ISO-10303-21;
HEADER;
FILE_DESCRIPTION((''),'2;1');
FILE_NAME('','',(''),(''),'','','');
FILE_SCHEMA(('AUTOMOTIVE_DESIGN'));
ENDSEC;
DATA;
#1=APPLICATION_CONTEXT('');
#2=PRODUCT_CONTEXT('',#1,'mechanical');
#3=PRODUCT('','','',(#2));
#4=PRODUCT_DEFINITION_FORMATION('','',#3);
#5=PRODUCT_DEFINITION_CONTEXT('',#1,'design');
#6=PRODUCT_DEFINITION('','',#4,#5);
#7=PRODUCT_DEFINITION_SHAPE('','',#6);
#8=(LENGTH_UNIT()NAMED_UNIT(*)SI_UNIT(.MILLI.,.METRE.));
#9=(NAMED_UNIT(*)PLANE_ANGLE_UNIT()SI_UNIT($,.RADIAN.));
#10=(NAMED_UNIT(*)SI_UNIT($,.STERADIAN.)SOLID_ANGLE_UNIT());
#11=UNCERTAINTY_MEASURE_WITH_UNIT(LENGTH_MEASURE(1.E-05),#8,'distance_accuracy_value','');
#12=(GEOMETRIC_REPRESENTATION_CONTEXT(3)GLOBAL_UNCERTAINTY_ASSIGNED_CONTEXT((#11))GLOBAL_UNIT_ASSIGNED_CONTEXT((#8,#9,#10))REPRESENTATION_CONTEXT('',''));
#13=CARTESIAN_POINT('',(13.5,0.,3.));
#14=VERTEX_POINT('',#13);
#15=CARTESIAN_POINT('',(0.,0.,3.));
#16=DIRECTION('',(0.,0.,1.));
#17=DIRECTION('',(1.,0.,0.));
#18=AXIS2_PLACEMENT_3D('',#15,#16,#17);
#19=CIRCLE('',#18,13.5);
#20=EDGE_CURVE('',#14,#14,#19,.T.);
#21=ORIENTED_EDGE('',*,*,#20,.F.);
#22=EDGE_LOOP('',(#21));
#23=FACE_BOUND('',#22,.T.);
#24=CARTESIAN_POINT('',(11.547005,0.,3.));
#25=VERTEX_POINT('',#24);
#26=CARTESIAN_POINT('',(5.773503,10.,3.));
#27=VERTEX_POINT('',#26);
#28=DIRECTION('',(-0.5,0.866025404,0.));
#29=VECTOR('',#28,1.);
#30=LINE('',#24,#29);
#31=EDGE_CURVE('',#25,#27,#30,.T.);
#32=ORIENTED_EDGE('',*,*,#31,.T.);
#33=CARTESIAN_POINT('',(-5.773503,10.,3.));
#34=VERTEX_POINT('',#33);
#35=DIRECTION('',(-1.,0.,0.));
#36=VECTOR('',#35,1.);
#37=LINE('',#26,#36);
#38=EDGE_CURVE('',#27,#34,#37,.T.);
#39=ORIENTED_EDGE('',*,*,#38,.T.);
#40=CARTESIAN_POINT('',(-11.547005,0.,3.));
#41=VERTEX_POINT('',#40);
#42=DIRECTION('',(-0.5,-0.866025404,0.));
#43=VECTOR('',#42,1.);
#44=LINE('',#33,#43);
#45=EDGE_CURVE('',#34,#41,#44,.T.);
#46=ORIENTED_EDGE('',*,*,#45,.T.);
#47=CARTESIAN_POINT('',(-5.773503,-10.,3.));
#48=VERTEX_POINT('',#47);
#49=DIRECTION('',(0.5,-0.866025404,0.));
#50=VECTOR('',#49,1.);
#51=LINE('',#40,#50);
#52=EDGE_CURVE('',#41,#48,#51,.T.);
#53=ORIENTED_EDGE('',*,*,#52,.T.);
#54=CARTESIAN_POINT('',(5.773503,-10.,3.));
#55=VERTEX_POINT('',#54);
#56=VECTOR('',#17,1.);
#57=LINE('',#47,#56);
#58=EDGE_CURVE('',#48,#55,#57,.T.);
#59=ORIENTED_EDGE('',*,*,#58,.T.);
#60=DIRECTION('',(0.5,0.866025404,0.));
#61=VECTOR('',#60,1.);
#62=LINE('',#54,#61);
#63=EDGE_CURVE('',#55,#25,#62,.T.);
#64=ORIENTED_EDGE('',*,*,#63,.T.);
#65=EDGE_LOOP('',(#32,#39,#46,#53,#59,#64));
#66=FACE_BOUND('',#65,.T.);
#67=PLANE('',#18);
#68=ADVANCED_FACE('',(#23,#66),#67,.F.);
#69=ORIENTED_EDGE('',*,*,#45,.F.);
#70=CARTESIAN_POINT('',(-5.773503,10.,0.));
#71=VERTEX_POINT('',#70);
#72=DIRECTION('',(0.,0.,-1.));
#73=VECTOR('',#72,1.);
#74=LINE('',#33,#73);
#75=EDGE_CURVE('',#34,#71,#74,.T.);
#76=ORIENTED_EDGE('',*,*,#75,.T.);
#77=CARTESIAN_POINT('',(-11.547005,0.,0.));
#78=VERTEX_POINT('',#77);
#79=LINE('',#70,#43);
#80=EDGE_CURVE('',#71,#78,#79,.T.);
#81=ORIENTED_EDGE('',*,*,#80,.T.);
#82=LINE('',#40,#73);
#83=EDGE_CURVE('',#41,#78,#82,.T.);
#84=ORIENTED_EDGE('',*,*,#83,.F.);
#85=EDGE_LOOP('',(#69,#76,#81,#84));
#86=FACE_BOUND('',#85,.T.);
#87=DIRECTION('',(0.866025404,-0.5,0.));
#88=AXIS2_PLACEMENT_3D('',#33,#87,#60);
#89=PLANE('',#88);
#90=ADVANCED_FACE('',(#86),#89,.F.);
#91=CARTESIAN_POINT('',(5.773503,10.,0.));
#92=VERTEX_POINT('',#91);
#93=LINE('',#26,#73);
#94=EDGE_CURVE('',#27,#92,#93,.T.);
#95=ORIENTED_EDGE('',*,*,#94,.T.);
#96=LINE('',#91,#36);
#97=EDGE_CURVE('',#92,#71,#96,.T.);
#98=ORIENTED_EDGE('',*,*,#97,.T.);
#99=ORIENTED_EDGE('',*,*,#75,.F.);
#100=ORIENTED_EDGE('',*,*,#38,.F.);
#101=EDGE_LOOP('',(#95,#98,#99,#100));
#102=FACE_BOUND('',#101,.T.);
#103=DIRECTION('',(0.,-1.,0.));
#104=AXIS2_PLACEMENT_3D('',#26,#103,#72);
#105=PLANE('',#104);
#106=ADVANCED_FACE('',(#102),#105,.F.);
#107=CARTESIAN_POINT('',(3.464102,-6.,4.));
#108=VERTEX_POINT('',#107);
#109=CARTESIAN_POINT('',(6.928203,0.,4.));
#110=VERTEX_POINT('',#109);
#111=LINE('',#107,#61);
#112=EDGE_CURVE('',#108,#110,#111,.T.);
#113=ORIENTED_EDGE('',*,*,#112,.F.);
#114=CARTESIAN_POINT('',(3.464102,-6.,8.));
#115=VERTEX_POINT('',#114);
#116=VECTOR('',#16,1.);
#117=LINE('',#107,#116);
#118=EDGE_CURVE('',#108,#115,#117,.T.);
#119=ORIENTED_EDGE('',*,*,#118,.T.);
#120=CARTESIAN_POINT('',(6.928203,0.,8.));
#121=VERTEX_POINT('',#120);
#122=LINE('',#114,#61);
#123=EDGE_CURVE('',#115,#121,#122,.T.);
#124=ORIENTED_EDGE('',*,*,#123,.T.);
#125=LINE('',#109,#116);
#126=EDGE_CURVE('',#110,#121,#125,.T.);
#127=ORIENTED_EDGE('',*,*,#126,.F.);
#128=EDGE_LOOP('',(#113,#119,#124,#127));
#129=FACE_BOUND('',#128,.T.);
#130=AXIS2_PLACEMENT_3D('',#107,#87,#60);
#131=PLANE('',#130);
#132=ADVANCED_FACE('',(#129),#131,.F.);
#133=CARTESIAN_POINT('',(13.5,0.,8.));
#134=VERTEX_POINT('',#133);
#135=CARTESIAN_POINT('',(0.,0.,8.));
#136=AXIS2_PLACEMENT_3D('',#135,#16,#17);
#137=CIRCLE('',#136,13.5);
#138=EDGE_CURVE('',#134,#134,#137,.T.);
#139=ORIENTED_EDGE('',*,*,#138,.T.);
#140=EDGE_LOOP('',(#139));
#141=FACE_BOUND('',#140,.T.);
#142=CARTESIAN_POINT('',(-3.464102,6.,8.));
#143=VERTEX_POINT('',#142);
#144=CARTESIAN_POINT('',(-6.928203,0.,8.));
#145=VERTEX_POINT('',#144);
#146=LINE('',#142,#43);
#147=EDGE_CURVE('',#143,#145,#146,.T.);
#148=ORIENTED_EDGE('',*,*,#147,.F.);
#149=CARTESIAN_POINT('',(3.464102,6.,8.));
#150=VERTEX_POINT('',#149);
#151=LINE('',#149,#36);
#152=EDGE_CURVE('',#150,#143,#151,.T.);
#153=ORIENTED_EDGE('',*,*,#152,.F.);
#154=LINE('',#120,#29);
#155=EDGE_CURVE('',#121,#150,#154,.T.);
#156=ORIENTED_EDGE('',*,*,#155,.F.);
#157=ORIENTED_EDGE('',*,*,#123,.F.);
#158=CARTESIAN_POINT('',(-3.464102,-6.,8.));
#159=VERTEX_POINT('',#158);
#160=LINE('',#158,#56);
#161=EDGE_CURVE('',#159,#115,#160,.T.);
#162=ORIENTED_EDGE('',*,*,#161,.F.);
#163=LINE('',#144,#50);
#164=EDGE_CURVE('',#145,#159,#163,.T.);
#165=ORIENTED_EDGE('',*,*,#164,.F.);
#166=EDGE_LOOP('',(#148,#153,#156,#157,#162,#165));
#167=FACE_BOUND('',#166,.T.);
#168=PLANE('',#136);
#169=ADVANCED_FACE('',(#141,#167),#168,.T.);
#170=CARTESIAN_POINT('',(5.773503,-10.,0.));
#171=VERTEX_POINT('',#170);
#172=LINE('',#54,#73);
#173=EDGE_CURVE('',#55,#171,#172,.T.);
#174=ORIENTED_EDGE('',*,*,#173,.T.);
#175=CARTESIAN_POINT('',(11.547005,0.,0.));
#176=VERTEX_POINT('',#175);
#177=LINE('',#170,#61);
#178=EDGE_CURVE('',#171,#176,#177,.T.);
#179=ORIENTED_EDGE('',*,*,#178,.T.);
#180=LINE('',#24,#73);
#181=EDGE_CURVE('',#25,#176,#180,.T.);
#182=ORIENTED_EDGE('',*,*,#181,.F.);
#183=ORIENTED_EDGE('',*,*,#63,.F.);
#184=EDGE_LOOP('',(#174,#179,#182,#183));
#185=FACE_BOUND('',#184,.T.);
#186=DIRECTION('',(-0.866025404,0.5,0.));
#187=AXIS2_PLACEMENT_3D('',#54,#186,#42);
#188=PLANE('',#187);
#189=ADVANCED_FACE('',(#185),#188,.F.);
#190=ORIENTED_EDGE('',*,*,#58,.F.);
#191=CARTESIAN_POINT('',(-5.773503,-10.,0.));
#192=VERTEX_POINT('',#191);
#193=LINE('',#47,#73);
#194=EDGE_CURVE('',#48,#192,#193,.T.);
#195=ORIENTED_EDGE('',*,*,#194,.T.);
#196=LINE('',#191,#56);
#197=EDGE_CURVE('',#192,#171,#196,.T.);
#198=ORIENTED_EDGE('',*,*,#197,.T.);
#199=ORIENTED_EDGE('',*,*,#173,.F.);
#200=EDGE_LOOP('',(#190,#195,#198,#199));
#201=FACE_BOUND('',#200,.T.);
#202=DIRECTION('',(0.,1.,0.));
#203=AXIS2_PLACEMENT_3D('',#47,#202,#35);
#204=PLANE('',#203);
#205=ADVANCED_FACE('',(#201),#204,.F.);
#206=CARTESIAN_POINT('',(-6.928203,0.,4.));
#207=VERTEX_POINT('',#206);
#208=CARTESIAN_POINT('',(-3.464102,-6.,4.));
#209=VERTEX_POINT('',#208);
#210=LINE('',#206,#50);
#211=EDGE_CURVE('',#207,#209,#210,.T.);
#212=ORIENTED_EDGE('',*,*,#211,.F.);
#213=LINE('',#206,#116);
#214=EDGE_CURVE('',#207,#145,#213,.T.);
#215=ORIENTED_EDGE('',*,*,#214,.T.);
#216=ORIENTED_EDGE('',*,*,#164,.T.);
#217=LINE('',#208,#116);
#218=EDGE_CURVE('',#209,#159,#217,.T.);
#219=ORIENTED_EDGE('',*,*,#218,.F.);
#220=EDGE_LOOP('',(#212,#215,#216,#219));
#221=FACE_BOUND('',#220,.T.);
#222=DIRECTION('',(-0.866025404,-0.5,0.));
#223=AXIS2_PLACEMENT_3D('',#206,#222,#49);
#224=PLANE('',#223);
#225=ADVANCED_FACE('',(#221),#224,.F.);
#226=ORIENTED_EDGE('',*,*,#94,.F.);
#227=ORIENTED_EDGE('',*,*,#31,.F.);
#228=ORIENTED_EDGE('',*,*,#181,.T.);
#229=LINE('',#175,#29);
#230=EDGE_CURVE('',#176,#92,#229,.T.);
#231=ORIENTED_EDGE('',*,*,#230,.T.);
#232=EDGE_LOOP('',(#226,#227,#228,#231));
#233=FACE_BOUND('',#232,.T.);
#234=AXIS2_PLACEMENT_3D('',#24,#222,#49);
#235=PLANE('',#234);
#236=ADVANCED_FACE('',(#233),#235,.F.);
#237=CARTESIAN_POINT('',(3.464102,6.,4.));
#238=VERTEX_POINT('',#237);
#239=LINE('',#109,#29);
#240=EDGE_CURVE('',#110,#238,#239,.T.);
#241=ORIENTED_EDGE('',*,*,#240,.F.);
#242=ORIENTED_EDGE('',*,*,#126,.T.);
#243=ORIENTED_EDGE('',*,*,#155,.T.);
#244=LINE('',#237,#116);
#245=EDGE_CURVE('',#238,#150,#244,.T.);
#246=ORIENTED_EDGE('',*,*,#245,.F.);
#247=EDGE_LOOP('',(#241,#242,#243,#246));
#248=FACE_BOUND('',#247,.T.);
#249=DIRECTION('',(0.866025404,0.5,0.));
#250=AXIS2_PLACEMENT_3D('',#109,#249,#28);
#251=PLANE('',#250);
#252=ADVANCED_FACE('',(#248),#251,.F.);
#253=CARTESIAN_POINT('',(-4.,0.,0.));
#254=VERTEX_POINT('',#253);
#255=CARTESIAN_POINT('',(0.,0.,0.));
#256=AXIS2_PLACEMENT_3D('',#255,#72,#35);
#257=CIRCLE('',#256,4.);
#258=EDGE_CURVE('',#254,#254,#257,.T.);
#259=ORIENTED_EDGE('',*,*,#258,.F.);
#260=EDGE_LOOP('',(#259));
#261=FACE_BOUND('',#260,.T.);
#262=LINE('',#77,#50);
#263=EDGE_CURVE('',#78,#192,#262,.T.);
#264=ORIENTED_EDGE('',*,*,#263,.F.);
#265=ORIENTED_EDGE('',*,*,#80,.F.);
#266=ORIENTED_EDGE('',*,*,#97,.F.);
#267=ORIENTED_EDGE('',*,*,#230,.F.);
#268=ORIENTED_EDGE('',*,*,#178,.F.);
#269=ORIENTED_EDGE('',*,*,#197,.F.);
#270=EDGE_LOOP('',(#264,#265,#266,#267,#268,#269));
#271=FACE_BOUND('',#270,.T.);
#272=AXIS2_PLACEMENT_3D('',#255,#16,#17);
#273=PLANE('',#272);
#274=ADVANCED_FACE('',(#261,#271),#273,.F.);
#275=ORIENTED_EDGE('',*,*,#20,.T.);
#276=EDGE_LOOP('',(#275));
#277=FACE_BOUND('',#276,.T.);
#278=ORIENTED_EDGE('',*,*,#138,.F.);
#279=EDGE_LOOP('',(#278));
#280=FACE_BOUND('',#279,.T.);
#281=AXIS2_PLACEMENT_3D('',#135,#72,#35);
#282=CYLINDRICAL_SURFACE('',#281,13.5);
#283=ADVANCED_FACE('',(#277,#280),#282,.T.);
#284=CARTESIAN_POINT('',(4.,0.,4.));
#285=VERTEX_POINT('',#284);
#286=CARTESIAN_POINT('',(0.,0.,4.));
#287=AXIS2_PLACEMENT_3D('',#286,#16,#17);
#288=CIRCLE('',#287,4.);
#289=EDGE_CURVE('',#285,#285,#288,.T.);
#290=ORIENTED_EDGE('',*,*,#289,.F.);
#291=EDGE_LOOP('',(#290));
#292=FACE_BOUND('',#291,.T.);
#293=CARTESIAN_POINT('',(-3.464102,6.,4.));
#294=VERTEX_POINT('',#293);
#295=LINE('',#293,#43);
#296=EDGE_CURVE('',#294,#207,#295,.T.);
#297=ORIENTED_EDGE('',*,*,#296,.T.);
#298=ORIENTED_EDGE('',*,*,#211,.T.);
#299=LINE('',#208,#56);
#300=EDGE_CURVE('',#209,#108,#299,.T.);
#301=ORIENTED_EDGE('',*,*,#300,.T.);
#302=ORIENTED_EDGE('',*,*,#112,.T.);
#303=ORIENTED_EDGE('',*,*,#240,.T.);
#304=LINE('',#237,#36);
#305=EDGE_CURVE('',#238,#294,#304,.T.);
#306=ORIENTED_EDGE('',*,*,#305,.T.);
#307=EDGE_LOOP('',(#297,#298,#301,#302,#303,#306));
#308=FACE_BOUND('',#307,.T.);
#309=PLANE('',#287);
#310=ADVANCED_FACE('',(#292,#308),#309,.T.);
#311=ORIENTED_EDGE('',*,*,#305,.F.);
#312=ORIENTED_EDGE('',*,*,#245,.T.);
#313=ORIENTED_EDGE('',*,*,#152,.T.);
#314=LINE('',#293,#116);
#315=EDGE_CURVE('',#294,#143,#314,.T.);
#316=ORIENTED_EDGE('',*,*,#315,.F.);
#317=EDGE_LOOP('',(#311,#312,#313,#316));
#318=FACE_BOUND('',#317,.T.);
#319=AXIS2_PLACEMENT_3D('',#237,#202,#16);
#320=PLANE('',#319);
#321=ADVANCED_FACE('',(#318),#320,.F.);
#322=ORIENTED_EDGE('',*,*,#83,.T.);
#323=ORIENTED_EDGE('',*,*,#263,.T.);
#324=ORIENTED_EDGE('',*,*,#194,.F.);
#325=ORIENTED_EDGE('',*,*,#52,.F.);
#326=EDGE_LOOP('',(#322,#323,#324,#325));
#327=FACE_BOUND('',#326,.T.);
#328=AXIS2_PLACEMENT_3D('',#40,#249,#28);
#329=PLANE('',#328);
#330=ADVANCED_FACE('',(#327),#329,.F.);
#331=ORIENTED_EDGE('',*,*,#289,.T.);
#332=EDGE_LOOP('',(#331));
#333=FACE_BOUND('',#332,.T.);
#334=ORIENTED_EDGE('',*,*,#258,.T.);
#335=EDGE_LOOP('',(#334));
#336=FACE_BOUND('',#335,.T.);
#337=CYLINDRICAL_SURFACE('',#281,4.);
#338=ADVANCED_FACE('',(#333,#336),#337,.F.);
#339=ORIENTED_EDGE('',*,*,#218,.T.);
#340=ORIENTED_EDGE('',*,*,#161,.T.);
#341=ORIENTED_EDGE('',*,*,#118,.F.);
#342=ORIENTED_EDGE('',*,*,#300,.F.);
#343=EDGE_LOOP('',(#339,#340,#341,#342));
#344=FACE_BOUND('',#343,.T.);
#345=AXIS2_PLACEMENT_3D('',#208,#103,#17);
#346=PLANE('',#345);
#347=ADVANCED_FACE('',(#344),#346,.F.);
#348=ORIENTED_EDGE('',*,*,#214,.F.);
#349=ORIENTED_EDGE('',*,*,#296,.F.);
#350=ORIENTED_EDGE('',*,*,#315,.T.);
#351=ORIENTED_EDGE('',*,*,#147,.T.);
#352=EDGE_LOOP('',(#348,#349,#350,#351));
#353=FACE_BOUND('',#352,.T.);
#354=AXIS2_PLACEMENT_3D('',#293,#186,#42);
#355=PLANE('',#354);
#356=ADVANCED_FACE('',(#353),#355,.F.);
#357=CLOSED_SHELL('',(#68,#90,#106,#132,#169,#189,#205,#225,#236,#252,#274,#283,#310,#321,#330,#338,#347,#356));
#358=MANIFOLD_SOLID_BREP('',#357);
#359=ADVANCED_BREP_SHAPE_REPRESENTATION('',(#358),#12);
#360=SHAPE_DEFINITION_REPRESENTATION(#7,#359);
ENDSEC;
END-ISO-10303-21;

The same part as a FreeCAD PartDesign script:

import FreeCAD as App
import Part
import Sketcher
Q = App.Units.Quantity

doc = App.newDocument("Part")
body = doc.addObject("PartDesign::Body", "Body")

sketch1 = body.newObject("Sketcher::SketchObject", "Sketch")
sketch1.AttachmentSupport = (doc.getObject("XY_Plane"), [""])
sketch1.MapMode = "FlatFace"
sketch1.addGeometry(Part.LineSegment(App.Vector(12, 0, 0), App.Vector(6, 10, 0)), False)
sketch1.addGeometry(Part.LineSegment(App.Vector(6, 10, 0), App.Vector(-6, 10, 0)), False)
sketch1.addGeometry(Part.LineSegment(App.Vector(-6, 10, 0), App.Vector(-12, 0, 0)), False)
sketch1.addGeometry(Part.LineSegment(App.Vector(-12, 0, 0), App.Vector(-6, -10, 0)), False)
sketch1.addGeometry(Part.LineSegment(App.Vector(-6, -10, 0), App.Vector(6, -10, 0)), False)
sketch1.addGeometry(Part.LineSegment(App.Vector(6, -10, 0), App.Vector(12, 0, 0)), False)
sketch1.addConstraint(Sketcher.Constraint("Coincident", 0, 2, 1, 1))
sketch1.addConstraint(Sketcher.Constraint("Coincident", 1, 2, 2, 1))
sketch1.addConstraint(Sketcher.Constraint("Coincident", 2, 2, 3, 1))
sketch1.addConstraint(Sketcher.Constraint("Coincident", 3, 2, 4, 1))
sketch1.addConstraint(Sketcher.Constraint("Coincident", 4, 2, 5, 1))
sketch1.addConstraint(Sketcher.Constraint("Coincident", 5, 2, 0, 1))
sketch1.addConstraint(Sketcher.Constraint("Horizontal", 1))
sketch1.addConstraint(Sketcher.Constraint("Horizontal", 4))
sketch1.addConstraint(Sketcher.Constraint("Symmetric", 0, 2, 3, 2, -1, 1))
sketch1.addConstraint(Sketcher.Constraint("Symmetric", 2, 2, 5, 2, -1, 1))
sketch1.addConstraint(Sketcher.Constraint("PointOnObject", 2, 2, -1))
sketch1.addConstraint(Sketcher.Constraint("Parallel", 2, 5))
sketch1.addConstraint(Sketcher.Constraint("Vertical", 1, 2, 3, 2))
sketch1.addConstraint(Sketcher.Constraint("Angle", 0, Q("120 deg")))
sketch1.addConstraint(Sketcher.Constraint("DistanceY", -1, 1, 0, 2, Q("10 mm")))
sketch1.addConstraint(Sketcher.Constraint("DistanceX", 1, 2, 1, 1, Q("11.547005 mm")))
pad1 = body.newObject("PartDesign::Pad", "Pad")
pad1.Profile = sketch1
pad1.Length = 3

sketch2 = body.newObject("Sketcher::SketchObject", "Sketch001")
sketch2.AttachmentSupport = (doc.getObject("XY_Plane"), [""])
sketch2.MapMode = "FlatFace"
sketch2.AttachmentOffset = App.Placement(App.Vector(0, 0, 3), App.Rotation())
sketch2.addGeometry(Part.Circle(App.Vector(0, 0, 0), App.Vector(0, 0, 1), 14), False)
sketch2.addConstraint(Sketcher.Constraint("Coincident", 0, 3, -1, 1))
sketch2.addConstraint(Sketcher.Constraint("Diameter", 0, Q("27 mm")))
pad2 = body.newObject("PartDesign::Pad", "Pad001")
pad2.Profile = sketch2
pad2.Length = 5

sketch3 = body.newObject("Sketcher::SketchObject", "Sketch002")
sketch3.AttachmentSupport = (doc.getObject("XY_Plane"), [""])
sketch3.MapMode = "FlatFace"
sketch3.AttachmentOffset = App.Placement(App.Vector(0, 0, 8), App.Rotation())
sketch3.addGeometry(Part.LineSegment(App.Vector(3, -6, 0), App.Vector(7, 0, 0)), False)
sketch3.addGeometry(Part.LineSegment(App.Vector(7, 0, 0), App.Vector(3, 6, 0)), False)
sketch3.addGeometry(Part.LineSegment(App.Vector(3, 6, 0), App.Vector(-3, 6, 0)), False)
sketch3.addGeometry(Part.LineSegment(App.Vector(-3, 6, 0), App.Vector(-7, 0, 0)), False)
sketch3.addGeometry(Part.LineSegment(App.Vector(-7, 0, 0), App.Vector(-3, -6, 0)), False)
sketch3.addGeometry(Part.LineSegment(App.Vector(-3, -6, 0), App.Vector(3, -6, 0)), False)
sketch3.addConstraint(Sketcher.Constraint("Coincident", 0, 2, 1, 1))
sketch3.addConstraint(Sketcher.Constraint("Coincident", 1, 2, 2, 1))
sketch3.addConstraint(Sketcher.Constraint("Coincident", 2, 2, 3, 1))
sketch3.addConstraint(Sketcher.Constraint("Coincident", 3, 2, 4, 1))
sketch3.addConstraint(Sketcher.Constraint("Coincident", 4, 2, 5, 1))
sketch3.addConstraint(Sketcher.Constraint("Coincident", 5, 2, 0, 1))
sketch3.addConstraint(Sketcher.Constraint("Horizontal", 2))
sketch3.addConstraint(Sketcher.Constraint("Horizontal", 5))
sketch3.addConstraint(Sketcher.Constraint("Symmetric", 0, 2, 3, 2, -1, 1))
sketch3.addConstraint(Sketcher.Constraint("Symmetric", 1, 2, 4, 2, -1, 1))
sketch3.addConstraint(Sketcher.Constraint("PointOnObject", 0, 2, -1))
sketch3.addConstraint(Sketcher.Constraint("Parallel", 0, 3))
sketch3.addConstraint(Sketcher.Constraint("Vertical", 2, 2, 4, 2))
sketch3.addConstraint(Sketcher.Constraint("Angle", 0, Q("60 deg")))
sketch3.addConstraint(Sketcher.Constraint("DistanceY", -1, 1, 1, 2, Q("6 mm")))
sketch3.addConstraint(Sketcher.Constraint("DistanceX", -1, 1, 1, 2, Q("3.464102 mm")))
pocket1 = body.newObject("PartDesign::Pocket", "Pocket")
pocket1.Profile = sketch3
pocket1.Length = 4

sketch4 = body.newObject("Sketcher::SketchObject", "Sketch003")
sketch4.AttachmentSupport = (doc.getObject("XY_Plane"), [""])
sketch4.MapMode = "FlatFace"
sketch4.addGeometry(Part.Circle(App.Vector(0, 0, 0), App.Vector(0, 0, 1), 4), False)
sketch4.addConstraint(Sketcher.Constraint("Coincident", 0, 3, -1, 1))
sketch4.addConstraint(Sketcher.Constraint("Diameter", 0, Q("8 mm")))
pocket2 = body.newObject("PartDesign::Pocket", "Pocket001")
pocket2.Profile = sketch4
pocket2.Type = "ThroughAll"
pocket2.Reversed = True

doc.recompute()
